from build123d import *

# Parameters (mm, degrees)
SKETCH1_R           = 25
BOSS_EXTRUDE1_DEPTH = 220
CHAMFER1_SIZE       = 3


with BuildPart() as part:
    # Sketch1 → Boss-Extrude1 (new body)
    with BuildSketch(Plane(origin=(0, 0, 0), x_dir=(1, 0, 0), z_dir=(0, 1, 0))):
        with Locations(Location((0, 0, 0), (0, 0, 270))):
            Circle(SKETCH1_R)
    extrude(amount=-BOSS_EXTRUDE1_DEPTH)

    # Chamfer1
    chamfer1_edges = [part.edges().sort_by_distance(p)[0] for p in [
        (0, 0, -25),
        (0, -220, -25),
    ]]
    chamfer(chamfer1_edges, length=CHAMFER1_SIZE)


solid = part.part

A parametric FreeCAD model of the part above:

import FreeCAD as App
import Part
import Sketcher

V = App.Vector


def edges_at(feature, points):
    """Names of the edges that pass closest to the given points."""
    edges = feature.Shape.Edges
    near = lambda p: min(range(len(edges)), key=lambda i: edges[i].distToShape(Part.Vertex(*p))[0])
    return sorted({f"Edge{near(p) + 1}" for p in points})

doc = App.newDocument("Part")
body = doc.addObject("PartDesign::Body", "Body")

# Sketch on XZ plane
sketch1 = doc.addObject("Sketcher::SketchObject", "Sketch")
body.addObject(sketch1)
sketch1.AttachmentSupport = (doc.XZ_Plane, [""])
sketch1.MapMode = "FlatFace"
sketch1.addGeometry(Part.Circle(V(0, 0, 0), V(0, 0, 1), 25), False)
sketch1.addConstraint([
    Sketcher.Constraint("Coincident", 0, 3, -1, 1),
    Sketcher.Constraint("Diameter", 0, 50.0),
])
pad1 = doc.addObject("PartDesign::Pad", "Pad")
body.addObject(pad1)
pad1.Profile = sketch1
pad1.Length = 220
doc.recompute()

chamfer = doc.addObject("PartDesign::Chamfer", "Chamfer")
body.addObject(chamfer)
chamfer.Base = (pad1, edges_at(pad1, [(0, 0, -25), (0, -220, -25)]))
chamfer.Size = 3

doc.recompute()
